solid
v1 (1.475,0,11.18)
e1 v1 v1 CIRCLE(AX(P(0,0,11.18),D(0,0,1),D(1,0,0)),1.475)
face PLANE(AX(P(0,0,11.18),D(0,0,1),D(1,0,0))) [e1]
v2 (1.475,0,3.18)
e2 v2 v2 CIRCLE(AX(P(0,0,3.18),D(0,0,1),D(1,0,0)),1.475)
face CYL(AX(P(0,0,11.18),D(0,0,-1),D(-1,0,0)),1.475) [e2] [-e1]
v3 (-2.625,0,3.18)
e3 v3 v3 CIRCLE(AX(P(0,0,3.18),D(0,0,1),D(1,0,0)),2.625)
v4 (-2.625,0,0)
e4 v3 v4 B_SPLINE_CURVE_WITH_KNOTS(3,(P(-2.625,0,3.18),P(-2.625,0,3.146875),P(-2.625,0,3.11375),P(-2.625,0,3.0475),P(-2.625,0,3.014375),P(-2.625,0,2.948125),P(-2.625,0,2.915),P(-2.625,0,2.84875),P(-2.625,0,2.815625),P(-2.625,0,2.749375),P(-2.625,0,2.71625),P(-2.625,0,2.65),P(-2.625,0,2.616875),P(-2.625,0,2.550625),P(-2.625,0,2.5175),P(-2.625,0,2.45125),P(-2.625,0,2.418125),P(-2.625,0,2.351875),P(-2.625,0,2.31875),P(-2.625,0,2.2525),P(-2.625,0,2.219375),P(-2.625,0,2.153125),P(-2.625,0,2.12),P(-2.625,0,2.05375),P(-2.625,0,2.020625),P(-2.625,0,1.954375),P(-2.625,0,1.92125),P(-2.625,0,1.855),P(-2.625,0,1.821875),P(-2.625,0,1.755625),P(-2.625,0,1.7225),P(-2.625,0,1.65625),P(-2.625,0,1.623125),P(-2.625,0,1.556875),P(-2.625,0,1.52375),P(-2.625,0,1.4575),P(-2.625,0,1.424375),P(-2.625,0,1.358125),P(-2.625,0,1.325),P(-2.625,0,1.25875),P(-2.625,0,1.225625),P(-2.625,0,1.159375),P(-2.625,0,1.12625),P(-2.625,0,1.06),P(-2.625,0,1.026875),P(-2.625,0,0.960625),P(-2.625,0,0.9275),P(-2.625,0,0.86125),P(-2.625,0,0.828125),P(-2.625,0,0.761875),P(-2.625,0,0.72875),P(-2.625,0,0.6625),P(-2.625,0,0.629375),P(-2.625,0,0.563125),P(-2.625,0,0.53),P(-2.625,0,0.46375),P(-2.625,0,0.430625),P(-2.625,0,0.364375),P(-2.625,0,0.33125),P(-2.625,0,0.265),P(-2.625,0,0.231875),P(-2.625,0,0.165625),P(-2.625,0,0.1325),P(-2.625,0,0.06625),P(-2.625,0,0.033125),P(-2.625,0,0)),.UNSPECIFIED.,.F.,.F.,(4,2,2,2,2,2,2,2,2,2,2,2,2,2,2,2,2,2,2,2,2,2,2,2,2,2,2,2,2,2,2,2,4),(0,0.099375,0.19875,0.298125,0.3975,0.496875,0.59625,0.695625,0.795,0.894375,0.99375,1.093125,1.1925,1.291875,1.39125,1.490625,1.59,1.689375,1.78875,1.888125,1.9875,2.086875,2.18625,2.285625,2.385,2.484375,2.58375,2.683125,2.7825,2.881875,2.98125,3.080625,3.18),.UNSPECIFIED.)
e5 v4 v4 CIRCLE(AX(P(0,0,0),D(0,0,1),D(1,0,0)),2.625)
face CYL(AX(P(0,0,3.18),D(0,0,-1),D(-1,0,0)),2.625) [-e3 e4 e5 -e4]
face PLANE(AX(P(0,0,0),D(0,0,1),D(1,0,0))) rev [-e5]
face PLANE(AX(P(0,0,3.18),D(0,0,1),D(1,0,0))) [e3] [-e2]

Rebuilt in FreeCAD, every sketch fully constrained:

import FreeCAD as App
import Part
import Sketcher
from FreeCAD import Vector

doc = App.newDocument("Part")
body = doc.addObject("PartDesign::Body", "Body")

# Sketch on XY plane
sketch1 = body.newObject("Sketcher::SketchObject", "Sketch")
sketch1.AttachmentSupport = (doc.getObject("XY_Plane"), [""])
sketch1.MapMode = "FlatFace"
sketch1.addGeometry(Part.Circle(Vector(0, 0, 0), Vector(0, 0, 1), 2.6), False)
sketch1.addConstraint([
    Sketcher.Constraint("Coincident", 0, 3, -1, 1),
    Sketcher.Constraint("Diameter", 0, 5.25),
])
pad1 = body.newObject("PartDesign::Pad", "Pad")
pad1.Profile = sketch1
pad1.Length = 3.18

# Sketch on XY plane
sketch2 = body.newObject("Sketcher::SketchObject", "Sketch001")
sketch2.AttachmentSupport = (doc.getObject("XY_Plane"), [""])
sketch2.MapMode = "FlatFace"
sketch2.AttachmentOffset = App.Placement(Vector(0, 0, 3.18), App.Rotation())
sketch2.addGeometry(Part.Circle(Vector(0, 0, 0), Vector(0, 0, 1), 1.5), False)
sketch2.addConstraint([
    Sketcher.Constraint("Coincident", 0, 3, -1, 1),
    Sketcher.Constraint("Diameter", 0, 2.95),
])
pad2 = body.newObject("PartDesign::Pad", "Pad001")
pad2.Profile = sketch2
pad2.Length = 8

doc.recompute()
